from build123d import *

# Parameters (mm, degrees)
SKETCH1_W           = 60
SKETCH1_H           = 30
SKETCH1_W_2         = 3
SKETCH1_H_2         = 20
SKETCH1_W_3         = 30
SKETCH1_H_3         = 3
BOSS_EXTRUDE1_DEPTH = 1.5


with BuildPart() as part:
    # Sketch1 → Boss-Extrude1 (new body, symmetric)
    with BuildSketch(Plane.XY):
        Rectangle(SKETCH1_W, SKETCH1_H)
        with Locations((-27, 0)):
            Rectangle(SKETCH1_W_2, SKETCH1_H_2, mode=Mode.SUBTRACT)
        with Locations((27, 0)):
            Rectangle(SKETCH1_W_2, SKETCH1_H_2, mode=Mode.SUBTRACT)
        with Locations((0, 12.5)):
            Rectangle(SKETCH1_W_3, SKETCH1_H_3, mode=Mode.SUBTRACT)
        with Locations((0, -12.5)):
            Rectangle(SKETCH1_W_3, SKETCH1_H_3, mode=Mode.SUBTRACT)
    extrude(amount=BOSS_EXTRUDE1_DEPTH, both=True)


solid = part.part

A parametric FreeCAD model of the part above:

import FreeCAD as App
import Part
import Sketcher

V = App.Vector
Q = App.Units.Quantity


def add_polygon(sketch, points):
    """Adds a closed chain of lines whose ends are joined by coincident constraints."""
    first, n = sketch.GeometryCount, len(points)
    for a, b in zip(points, points[1:] + points[:1]):
        sketch.addGeometry(Part.LineSegment(App.Vector(*a, 0), App.Vector(*b, 0)), False)
    for i in range(n):
        sketch.addConstraint(Sketcher.Constraint("Coincident", first + i, 2, first + (i + 1) % n, 1))

doc = App.newDocument("Part")
body = doc.addObject("PartDesign::Body", "Body")

# Sketch on XY plane
sketch1 = doc.addObject("Sketcher::SketchObject", "Sketch")
body.addObject(sketch1)
sketch1.AttachmentSupport = (doc.XY_Plane, [""])
sketch1.MapMode = "FlatFace"
add_polygon(sketch1, [(-30, 15), (-30, -15), (30, -15), (30, 15)])  # lines 0-3
add_polygon(sketch1, [(15, -14), (-15, -14), (-15, -11), (15, -11)])  # lines 4-7
add_polygon(sketch1, [(-25.5, -10), (-28.5, -10), (-28.5, 10), (-25.5, 10)])  # lines 8-11
add_polygon(sketch1, [(28.5, -10), (25.5, -10), (25.5, 10), (28.5, 10)])  # lines 12-15
add_polygon(sketch1, [(15, 11), (-15, 11), (-15, 14), (15, 14)])  # lines 16-19
sketch1.addConstraint([
    Sketcher.Constraint("Vertical", 0),
    Sketcher.Constraint("Horizontal", 1),
    Sketcher.Constraint("Vertical", 2),
    Sketcher.Constraint("Horizontal", 3),
    Sketcher.Constraint("Horizontal", 4),
    Sketcher.Constraint("Vertical", 5),
    Sketcher.Constraint("Horizontal", 6),
    Sketcher.Constraint("Vertical", 7),
    Sketcher.Constraint("Horizontal", 8),
    Sketcher.Constraint("Vertical", 9),
    Sketcher.Constraint("Horizontal", 10),
    Sketcher.Constraint("Vertical", 11),
    Sketcher.Constraint("Horizontal", 12),
    Sketcher.Constraint("Vertical", 13),
    Sketcher.Constraint("Horizontal", 14),
    Sketcher.Constraint("Vertical", 15),
    Sketcher.Constraint("Horizontal", 16),
    Sketcher.Constraint("Vertical", 17),
    Sketcher.Constraint("Horizontal", 18),
    Sketcher.Constraint("Vertical", 19),
    Sketcher.Constraint("Symmetric", 0, 2, 2, 2, -1, 1),
    Sketcher.Constraint("Symmetric", 10, 2, 12, 2, -1, 1),
    Sketcher.Constraint("Symmetric", 8, 2, 14, 2, -1, 1),
    Sketcher.Constraint("Symmetric", 6, 2, 16, 2, -1, 1),
    Sketcher.Constraint("Symmetric", 4, 2, 18, 2, -1, 1),
    Sketcher.Constraint("Horizontal", 11, 2, 12, 2),
    Sketcher.Constraint("Vertical", 5, 2, 16, 2),
    Sketcher.Constraint("Equal", 18, 0),
    Sketcher.Constraint("Equal", 14, 5),
    Sketcher.Constraint("DistanceX", 1, 1, 1, 2, Q("60 mm")),
    Sketcher.Constraint("DistanceX", 4, 2, 4, 1, Q("30 mm")),
    Sketcher.Constraint("DistanceX", 8, 2, 8, 1, Q("3 mm")),
    Sketcher.Constraint("DistanceY", 9, 1, 9, 2, Q("20 mm")),
    Sketcher.Constraint("DistanceY", 4, 2, -1, 1, Q("14 mm")),
    Sketcher.Constraint("DistanceX", 8, 2, -1, 1, Q("28.5 mm")),
])
pad1 = doc.addObject("PartDesign::Pad", "Pad")
body.addObject(pad1)
pad1.Profile = sketch1
pad1.Length = 3
pad1.Midplane = True

doc.recompute()
